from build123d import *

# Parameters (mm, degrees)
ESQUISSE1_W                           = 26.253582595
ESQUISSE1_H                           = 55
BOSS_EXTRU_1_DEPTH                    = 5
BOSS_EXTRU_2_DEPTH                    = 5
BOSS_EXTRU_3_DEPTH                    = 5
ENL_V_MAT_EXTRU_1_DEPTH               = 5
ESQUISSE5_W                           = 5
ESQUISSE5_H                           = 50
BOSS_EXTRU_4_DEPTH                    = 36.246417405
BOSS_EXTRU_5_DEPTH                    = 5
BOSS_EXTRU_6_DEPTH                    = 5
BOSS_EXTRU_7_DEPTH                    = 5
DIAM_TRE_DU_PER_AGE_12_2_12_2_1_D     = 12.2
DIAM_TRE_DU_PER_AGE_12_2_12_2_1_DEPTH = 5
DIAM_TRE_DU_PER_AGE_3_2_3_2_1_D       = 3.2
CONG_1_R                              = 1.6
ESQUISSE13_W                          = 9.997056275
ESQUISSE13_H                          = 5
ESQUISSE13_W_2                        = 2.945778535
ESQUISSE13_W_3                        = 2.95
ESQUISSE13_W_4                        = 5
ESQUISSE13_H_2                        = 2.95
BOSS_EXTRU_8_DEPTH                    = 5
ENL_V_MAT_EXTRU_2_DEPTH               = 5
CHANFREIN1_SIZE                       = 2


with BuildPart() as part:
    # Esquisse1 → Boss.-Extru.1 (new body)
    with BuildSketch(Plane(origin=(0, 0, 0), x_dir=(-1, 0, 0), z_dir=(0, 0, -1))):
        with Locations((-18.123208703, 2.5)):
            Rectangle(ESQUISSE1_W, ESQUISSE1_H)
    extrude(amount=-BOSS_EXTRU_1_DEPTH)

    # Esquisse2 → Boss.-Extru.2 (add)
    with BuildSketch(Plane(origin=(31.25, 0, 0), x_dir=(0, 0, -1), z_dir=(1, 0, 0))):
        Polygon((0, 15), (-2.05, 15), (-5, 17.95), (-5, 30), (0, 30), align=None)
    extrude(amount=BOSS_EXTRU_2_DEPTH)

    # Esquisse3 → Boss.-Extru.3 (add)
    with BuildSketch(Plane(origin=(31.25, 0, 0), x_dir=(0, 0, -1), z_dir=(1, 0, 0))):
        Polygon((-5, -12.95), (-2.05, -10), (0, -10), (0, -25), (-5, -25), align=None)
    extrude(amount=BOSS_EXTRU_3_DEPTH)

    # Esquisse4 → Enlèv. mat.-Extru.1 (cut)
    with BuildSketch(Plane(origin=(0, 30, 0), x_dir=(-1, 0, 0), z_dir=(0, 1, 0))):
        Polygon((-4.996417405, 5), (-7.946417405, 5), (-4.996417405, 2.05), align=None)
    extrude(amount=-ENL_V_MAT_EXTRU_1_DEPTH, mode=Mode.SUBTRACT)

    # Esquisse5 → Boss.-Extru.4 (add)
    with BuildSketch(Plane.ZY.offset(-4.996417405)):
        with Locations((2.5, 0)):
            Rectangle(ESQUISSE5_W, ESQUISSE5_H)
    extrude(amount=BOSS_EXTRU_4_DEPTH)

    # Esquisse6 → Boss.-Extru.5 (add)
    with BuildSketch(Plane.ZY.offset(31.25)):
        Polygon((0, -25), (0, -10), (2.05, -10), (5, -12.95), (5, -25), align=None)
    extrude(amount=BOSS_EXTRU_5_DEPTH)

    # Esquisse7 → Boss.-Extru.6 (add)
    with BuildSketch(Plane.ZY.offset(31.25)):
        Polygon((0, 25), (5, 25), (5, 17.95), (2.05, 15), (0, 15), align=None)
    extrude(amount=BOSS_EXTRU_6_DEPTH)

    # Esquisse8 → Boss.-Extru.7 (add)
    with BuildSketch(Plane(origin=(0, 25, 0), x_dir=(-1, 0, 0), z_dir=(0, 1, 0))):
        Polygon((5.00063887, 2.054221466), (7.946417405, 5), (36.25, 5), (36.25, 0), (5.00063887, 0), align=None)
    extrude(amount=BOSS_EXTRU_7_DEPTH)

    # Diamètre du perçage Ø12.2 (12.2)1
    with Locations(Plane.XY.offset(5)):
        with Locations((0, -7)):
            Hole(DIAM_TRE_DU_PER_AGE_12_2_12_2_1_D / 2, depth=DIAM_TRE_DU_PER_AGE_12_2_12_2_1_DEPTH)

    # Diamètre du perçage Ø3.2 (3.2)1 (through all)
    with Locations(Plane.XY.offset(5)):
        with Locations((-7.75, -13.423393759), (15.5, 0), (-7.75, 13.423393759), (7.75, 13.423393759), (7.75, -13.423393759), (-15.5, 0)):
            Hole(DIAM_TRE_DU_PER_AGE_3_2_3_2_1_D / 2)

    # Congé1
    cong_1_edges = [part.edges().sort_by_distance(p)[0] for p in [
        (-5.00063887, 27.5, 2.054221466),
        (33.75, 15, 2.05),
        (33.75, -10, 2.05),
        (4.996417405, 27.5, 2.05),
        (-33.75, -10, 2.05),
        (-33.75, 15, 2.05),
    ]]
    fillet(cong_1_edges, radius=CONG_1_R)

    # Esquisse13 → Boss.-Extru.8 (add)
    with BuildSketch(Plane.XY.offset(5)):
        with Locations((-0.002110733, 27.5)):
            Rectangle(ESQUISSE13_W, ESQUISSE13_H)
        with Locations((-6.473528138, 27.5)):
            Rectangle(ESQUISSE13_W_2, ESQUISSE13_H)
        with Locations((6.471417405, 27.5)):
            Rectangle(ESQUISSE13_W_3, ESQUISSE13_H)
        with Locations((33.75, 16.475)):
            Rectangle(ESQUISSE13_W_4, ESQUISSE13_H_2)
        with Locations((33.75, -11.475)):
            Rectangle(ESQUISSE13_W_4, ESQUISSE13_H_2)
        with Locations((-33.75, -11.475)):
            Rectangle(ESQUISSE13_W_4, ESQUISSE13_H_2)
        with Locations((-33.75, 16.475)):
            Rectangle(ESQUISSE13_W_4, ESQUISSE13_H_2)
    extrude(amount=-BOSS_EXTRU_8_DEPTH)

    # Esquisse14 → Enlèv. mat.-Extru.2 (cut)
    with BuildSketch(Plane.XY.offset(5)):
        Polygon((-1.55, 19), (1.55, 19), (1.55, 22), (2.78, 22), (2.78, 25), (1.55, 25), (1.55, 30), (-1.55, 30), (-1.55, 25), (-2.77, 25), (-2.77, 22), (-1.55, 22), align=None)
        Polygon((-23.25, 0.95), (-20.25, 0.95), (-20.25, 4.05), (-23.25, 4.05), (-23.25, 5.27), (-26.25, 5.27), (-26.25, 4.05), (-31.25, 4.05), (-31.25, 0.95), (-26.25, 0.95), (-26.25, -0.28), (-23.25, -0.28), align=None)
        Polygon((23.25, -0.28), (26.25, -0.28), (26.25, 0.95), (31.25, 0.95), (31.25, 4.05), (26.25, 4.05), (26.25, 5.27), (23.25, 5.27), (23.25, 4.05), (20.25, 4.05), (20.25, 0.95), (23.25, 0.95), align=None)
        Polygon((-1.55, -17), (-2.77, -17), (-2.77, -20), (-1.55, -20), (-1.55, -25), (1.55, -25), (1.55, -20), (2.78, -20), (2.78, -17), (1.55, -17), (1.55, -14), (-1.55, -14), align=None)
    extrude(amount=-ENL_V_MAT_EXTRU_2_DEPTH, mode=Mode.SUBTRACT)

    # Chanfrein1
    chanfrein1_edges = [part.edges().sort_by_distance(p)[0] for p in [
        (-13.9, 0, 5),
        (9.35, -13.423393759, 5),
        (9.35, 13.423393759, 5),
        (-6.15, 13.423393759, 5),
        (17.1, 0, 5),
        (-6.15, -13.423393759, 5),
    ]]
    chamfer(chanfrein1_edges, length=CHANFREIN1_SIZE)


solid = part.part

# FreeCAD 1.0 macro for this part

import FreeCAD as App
import Part
import Sketcher

V = App.Vector
Q = App.Units.Quantity


def edges_at(feature, points):
    """Names of the edges that pass closest to the given points."""
    edges = feature.Shape.Edges
    near = lambda p: min(range(len(edges)), key=lambda i: edges[i].distToShape(Part.Vertex(*p))[0])
    return sorted({f"Edge{near(p) + 1}" for p in points})

doc = App.newDocument("Part")
body = doc.addObject("PartDesign::Body", "Body")

# Sketch on XY plane
sketch1 = body.newObject("Sketcher::SketchObject", "Sketch")
sketch1.AttachmentSupport = (doc.getObject("XY_Plane"), [""])
sketch1.MapMode = "FlatFace"
sketch1.addGeometry(Part.LineSegment(V(31, 30, 0), V(31, -25, 0)), False)
sketch1.addGeometry(Part.LineSegment(V(31, -25, 0), V(5, -25, 0)), False)
sketch1.addGeometry(Part.LineSegment(V(5, -25, 0), V(5, 30, 0)), False)
sketch1.addGeometry(Part.LineSegment(V(5, 30, 0), V(31, 30, 0)), False)
sketch1.addConstraint(Sketcher.Constraint("Coincident", 0, 2, 1, 1))
sketch1.addConstraint(Sketcher.Constraint("Coincident", 1, 2, 2, 1))
sketch1.addConstraint(Sketcher.Constraint("Coincident", 2, 2, 3, 1))
sketch1.addConstraint(Sketcher.Constraint("Coincident", 3, 2, 0, 1))
sketch1.addConstraint(Sketcher.Constraint("Vertical", 0))
sketch1.addConstraint(Sketcher.Constraint("Horizontal", 1))
sketch1.addConstraint(Sketcher.Constraint("Vertical", 2))
sketch1.addConstraint(Sketcher.Constraint("Horizontal", 3))
sketch1.addConstraint(Sketcher.Constraint("DistanceY", 0, 2, 0, 1, Q("55 mm")))
sketch1.addConstraint(Sketcher.Constraint("DistanceY", 0, 2, -1, 1, Q("25 mm")))
sketch1.addConstraint(Sketcher.Constraint("DistanceX", -1, 1, 0, 2, Q("31.25 mm")))
sketch1.addConstraint(Sketcher.Constraint("DistanceX", 1, 2, 1, 1, Q("26.253583 mm")))
pad1 = body.newObject("PartDesign::Pad", "Pad")
pad1.Profile = sketch1
pad1.Length = 5

# Sketch on YZ plane
sketch2 = body.newObject("Sketcher::SketchObject", "Sketch001")
sketch2.AttachmentSupport = (doc.getObject("YZ_Plane"), [""])
sketch2.MapMode = "FlatFace"
sketch2.AttachmentOffset = App.Placement(V(0, 0, 31.25), App.Rotation())
sketch2.addGeometry(Part.LineSegment(V(15, 2, 0), V(15, 0, 0)), False)
sketch2.addGeometry(Part.LineSegment(V(15, 0, 0), V(30, 0, 0)), False)
sketch2.addGeometry(Part.LineSegment(V(30, 0, 0), V(30, 5, 0)), False)
sketch2.addGeometry(Part.LineSegment(V(30, 5, 0), V(17.9, 5, 0)), False)
sketch2.addGeometry(Part.LineSegment(V(17.9, 5, 0), V(15, 2, 0)), False)
sketch2.addConstraint(Sketcher.Constraint("Coincident", 0, 2, 1, 1))
sketch2.addConstraint(Sketcher.Constraint("Coincident", 1, 2, 2, 1))
sketch2.addConstraint(Sketcher.Constraint("Coincident", 2, 2, 3, 1))
sketch2.addConstraint(Sketcher.Constraint("Coincident", 3, 2, 4, 1))
sketch2.addConstraint(Sketcher.Constraint("Coincident", 4, 2, 0, 1))
sketch2.addConstraint(Sketcher.Constraint("Vertical", 0))
sketch2.addConstraint(Sketcher.Constraint("Horizontal", 1))
sketch2.addConstraint(Sketcher.Constraint("Vertical", 2))
sketch2.addConstraint(Sketcher.Constraint("Horizontal", 3))
sketch2.addConstraint(Sketcher.Constraint("PointOnObject", 0, 2, -1))
sketch2.addConstraint(Sketcher.Constraint("DistanceX", 1, 1, 1, 2, Q("15 mm")))
sketch2.addConstraint(Sketcher.Constraint("DistanceY", 2, 1, 2, 2, Q("5 mm")))
sketch2.addConstraint(Sketcher.Constraint("Angle", 4, Q("-135 deg")))
sketch2.addConstraint(Sketcher.Constraint("DistanceX", -1, 1, 0, 2, Q("15 mm")))
sketch2.addConstraint(Sketcher.Constraint("DistanceX", 3, 2, 3, 1, Q("12.05 mm")))
pad2 = body.newObject("PartDesign::Pad", "Pad001")
pad2.Profile = sketch2
pad2.Length = 5

# Sketch on YZ plane
sketch3 = body.newObject("Sketcher::SketchObject", "Sketch002")
sketch3.AttachmentSupport = (doc.getObject("YZ_Plane"), [""])
sketch3.MapMode = "FlatFace"
sketch3.AttachmentOffset = App.Placement(V(0, 0, 31.25), App.Rotation())
sketch3.addGeometry(Part.LineSegment(V(-10, 2, 0), V(-12.9, 5, 0)), False)
sketch3.addGeometry(Part.LineSegment(V(-12.9, 5, 0), V(-25, 5, 0)), False)
sketch3.addGeometry(Part.LineSegment(V(-25, 5, 0), V(-25, 0, 0)), False)
sketch3.addGeometry(Part.LineSegment(V(-25, 0, 0), V(-10, 0, 0)), False)
sketch3.addGeometry(Part.LineSegment(V(-10, 0, 0), V(-10, 2, 0)), False)
sketch3.addConstraint(Sketcher.Constraint("Coincident", 0, 2, 1, 1))
sketch3.addConstraint(Sketcher.Constraint("Coincident", 1, 2, 2, 1))
sketch3.addConstraint(Sketcher.Constraint("Coincident", 2, 2, 3, 1))
sketch3.addConstraint(Sketcher.Constraint("Coincident", 3, 2, 4, 1))
sketch3.addConstraint(Sketcher.Constraint("Coincident", 4, 2, 0, 1))
sketch3.addConstraint(Sketcher.Constraint("Horizontal", 1))
sketch3.addConstraint(Sketcher.Constraint("Vertical", 2))
sketch3.addConstraint(Sketcher.Constraint("Horizontal", 3))
sketch3.addConstraint(Sketcher.Constraint("Vertical", 4))
sketch3.addConstraint(Sketcher.Constraint("PointOnObject", 2, 2, -1))
sketch3.addConstraint(Sketcher.Constraint("DistanceX", 3, 1, 3, 2, Q("15 mm")))
sketch3.addConstraint(Sketcher.Constraint("DistanceY", 2, 2, 2, 1, Q("5 mm")))
sketch3.addConstraint(Sketcher.Constraint("Angle", 0, Q("135 deg")))
sketch3.addConstraint(Sketcher.Constraint("DistanceX", 1, 2, -1, 1, Q("25 mm")))
sketch3.addConstraint(Sketcher.Constraint("DistanceX", 1, 2, 1, 1, Q("12.05 mm")))
pad3 = body.newObject("PartDesign::Pad", "Pad002")
pad3.Profile = sketch3
pad3.Length = 5

# Sketch on XZ plane
sketch4 = body.newObject("Sketcher::SketchObject", "Sketch003")
sketch4.AttachmentSupport = (doc.getObject("XZ_Plane"), [""])
sketch4.MapMode = "FlatFace"
sketch4.AttachmentOffset = App.Placement(V(0, 0, -30), App.Rotation())
sketch4.addGeometry(Part.LineSegment(V(5, 5, 0), V(7.9, 5, 0)), False)
sketch4.addGeometry(Part.LineSegment(V(7.9, 5, 0), V(5, 2, 0)), False)
sketch4.addGeometry(Part.LineSegment(V(5, 2, 0), V(5, 5, 0)), False)
sketch4.addConstraint(Sketcher.Constraint("Coincident", 0, 2, 1, 1))
sketch4.addConstraint(Sketcher.Constraint("Coincident", 1, 2, 2, 1))
sketch4.addConstraint(Sketcher.Constraint("Coincident", 2, 2, 0, 1))
sketch4.addConstraint(Sketcher.Constraint("Horizontal", 0))
sketch4.addConstraint(Sketcher.Constraint("Vertical", 2))
sketch4.addConstraint(Sketcher.Constraint("Equal", 0, 2))
sketch4.addConstraint(Sketcher.Constraint("DistanceY", -1, 1, 0, 2, Q("5 mm")))
sketch4.addConstraint(Sketcher.Constraint("DistanceX", 0, 1, 0, 2, Q("2.95 mm")))
sketch4.addConstraint(Sketcher.Constraint("DistanceX", -1, 1, 0, 2, Q("7.946417 mm")))
pocket1 = body.newObject("PartDesign::Pocket", "Pocket")
pocket1.Profile = sketch4
pocket1.Length = 5
pocket1.Reversed = True

# Sketch on YZ plane
sketch5 = body.newObject("Sketcher::SketchObject", "Sketch004")
sketch5.AttachmentSupport = (doc.getObject("YZ_Plane"), [""])
sketch5.MapMode = "FlatFace"
sketch5.AttachmentOffset = App.Placement(V(0, 0, 4.996417), App.Rotation())
sketch5.addGeometry(Part.LineSegment(V(25, 0, 0), V(-25, 0, 0)), False)
sketch5.addGeometry(Part.LineSegment(V(-25, 0, 0), V(-25, 5, 0)), False)
sketch5.addGeometry(Part.LineSegment(V(-25, 5, 0), V(25, 5, 0)), False)
sketch5.addGeometry(Part.LineSegment(V(25, 5, 0), V(25, 0, 0)), False)
sketch5.addConstraint(Sketcher.Constraint("Coincident", 0, 2, 1, 1))
sketch5.addConstraint(Sketcher.Constraint("Coincident", 1, 2, 2, 1))
sketch5.addConstraint(Sketcher.Constraint("Coincident", 2, 2, 3, 1))
sketch5.addConstraint(Sketcher.Constraint("Coincident", 3, 2, 0, 1))
sketch5.addConstraint(Sketcher.Constraint("Horizontal", 0))
sketch5.addConstraint(Sketcher.Constraint("Vertical", 1))
sketch5.addConstraint(Sketcher.Constraint("Horizontal", 2))
sketch5.addConstraint(Sketcher.Constraint("Vertical", 3))
sketch5.addConstraint(Sketcher.Constraint("Symmetric", 0, 2, 3, 2, -1, 1))
sketch5.addConstraint(Sketcher.Constraint("DistanceX", 0, 2, 0, 1, Q("50 mm")))
sketch5.addConstraint(Sketcher.Constraint("DistanceY", 1, 1, 1, 2, Q("5 mm")))
pad4 = body.newObject("PartDesign::Pad", "Pad003")
pad4.Profile = sketch5
pad4.Length = 36.246417
pad4.Reversed = True

# Sketch on YZ plane
sketch6 = body.newObject("Sketcher::SketchObject", "Sketch005")
sketch6.AttachmentSupport = (doc.getObject("YZ_Plane"), [""])
sketch6.MapMode = "FlatFace"
sketch6.AttachmentOffset = App.Placement(V(0, 0, -31.25), App.Rotation())
sketch6.addGeometry(Part.LineSegment(V(-10, 0, 0), V(-25, 0, 0)), False)
sketch6.addGeometry(Part.LineSegment(V(-25, 0, 0), V(-25, 5, 0)), False)
sketch6.addGeometry(Part.LineSegment(V(-25, 5, 0), V(-12.9, 5, 0)), False)
sketch6.addGeometry(Part.LineSegment(V(-12.9, 5, 0), V(-10, 2, 0)), False)
sketch6.addGeometry(Part.LineSegment(V(-10, 2, 0), V(-10, 0, 0)), False)
sketch6.addConstraint(Sketcher.Constraint("Coincident", 0, 2, 1, 1))
sketch6.addConstraint(Sketcher.Constraint("Coincident", 1, 2, 2, 1))
sketch6.addConstraint(Sketcher.Constraint("Coincident", 2, 2, 3, 1))
sketch6.addConstraint(Sketcher.Constraint("Coincident", 3, 2, 4, 1))
sketch6.addConstraint(Sketcher.Constraint("Coincident", 4, 2, 0, 1))
sketch6.addConstraint(Sketcher.Constraint("Horizontal", 0))
sketch6.addConstraint(Sketcher.Constraint("Vertical", 1))
sketch6.addConstraint(Sketcher.Constraint("Horizontal", 2))
sketch6.addConstraint(Sketcher.Constraint("Vertical", 4))
sketch6.addConstraint(Sketcher.Constraint("PointOnObject", 0, 2, -1))
sketch6.addConstraint(Sketcher.Constraint("DistanceX", 0, 2, 0, 1, Q("15 mm")))
sketch6.addConstraint(Sketcher.Constraint("DistanceY", 1, 1, 1, 2, Q("5 mm")))
sketch6.addConstraint(Sketcher.Constraint("Angle", 3, Q("-45 deg")))
sketch6.addConstraint(Sketcher.Constraint("DistanceX", 0, 2, -1, 1, Q("25 mm")))
sketch6.addConstraint(Sketcher.Constraint("DistanceX", 2, 1, 2, 2, Q("12.05 mm")))
pad5 = body.newObject("PartDesign::Pad", "Pad004")
pad5.Profile = sketch6
pad5.Length = 5
pad5.Reversed = True

# Sketch on YZ plane
sketch7 = body.newObject("Sketcher::SketchObject", "Sketch006")
sketch7.AttachmentSupport = (doc.getObject("YZ_Plane"), [""])
sketch7.MapMode = "FlatFace"
sketch7.AttachmentOffset = App.Placement(V(0, 0, -31.25), App.Rotation())
sketch7.addGeometry(Part.LineSegment(V(25, 5, 0), V(25, 0, 0)), False)
sketch7.addGeometry(Part.LineSegment(V(25, 0, 0), V(15, 0, 0)), False)
sketch7.addGeometry(Part.LineSegment(V(15, 0, 0), V(15, 2, 0)), False)
sketch7.addGeometry(Part.LineSegment(V(15, 2, 0), V(17.9, 5, 0)), False)
sketch7.addGeometry(Part.LineSegment(V(17.9, 5, 0), V(25, 5, 0)), False)
sketch7.addConstraint(Sketcher.Constraint("Coincident", 0, 2, 1, 1))
sketch7.addConstraint(Sketcher.Constraint("Coincident", 1, 2, 2, 1))
sketch7.addConstraint(Sketcher.Constraint("Coincident", 2, 2, 3, 1))
sketch7.addConstraint(Sketcher.Constraint("Coincident", 3, 2, 4, 1))
sketch7.addConstraint(Sketcher.Constraint("Coincident", 4, 2, 0, 1))
sketch7.addConstraint(Sketcher.Constraint("Vertical", 0))
sketch7.addConstraint(Sketcher.Constraint("Horizontal", 1))
sketch7.addConstraint(Sketcher.Constraint("Vertical", 2))
sketch7.addConstraint(Sketcher.Constraint("Horizontal", 4))
sketch7.addConstraint(Sketcher.Constraint("PointOnObject", 0, 2, -1))
sketch7.addConstraint(Sketcher.Constraint("DistanceX", 1, 2, 1, 1, Q("10 mm")))
sketch7.addConstraint(Sketcher.Constraint("DistanceY", 0, 2, 0, 1, Q("5 mm")))
sketch7.addConstraint(Sketcher.Constraint("Angle", 3, Q("45 deg")))
sketch7.addConstraint(Sketcher.Constraint("DistanceX", -1, 1, 0, 2, Q("25 mm")))
sketch7.addConstraint(Sketcher.Constraint("DistanceX", 4, 1, 4, 2, Q("7.05 mm")))
pad6 = body.newObject("PartDesign::Pad", "Pad005")
pad6.Profile = sketch7
pad6.Length = 5
pad6.Reversed = True

# Sketch on XZ plane
sketch8 = body.newObject("Sketcher::SketchObject", "Sketch007")
sketch8.AttachmentSupport = (doc.getObject("XZ_Plane"), [""])
sketch8.MapMode = "FlatFace"
sketch8.AttachmentOffset = App.Placement(V(0, 0, -25), App.Rotation())
sketch8.addGeometry(Part.LineSegment(V(-7.9, 5, 0), V(-5, 2.1, 0)), False)
sketch8.addGeometry(Part.LineSegment(V(-5, 2.1, 0), V(-5, 0, 0)), False)
sketch8.addGeometry(Part.LineSegment(V(-5, 0, 0), V(-36.2, 0, 0)), False)
sketch8.addGeometry(Part.LineSegment(V(-36.2, 0, 0), V(-36.2, 5, 0)), False)
sketch8.addGeometry(Part.LineSegment(V(-36.2, 5, 0), V(-7.9, 5, 0)), False)
sketch8.addConstraint(Sketcher.Constraint("Coincident", 0, 2, 1, 1))
sketch8.addConstraint(Sketcher.Constraint("Coincident", 1, 2, 2, 1))
sketch8.addConstraint(Sketcher.Constraint("Coincident", 2, 2, 3, 1))
sketch8.addConstraint(Sketcher.Constraint("Coincident", 3, 2, 4, 1))
sketch8.addConstraint(Sketcher.Constraint("Coincident", 4, 2, 0, 1))
sketch8.addConstraint(Sketcher.Constraint("Vertical", 1))
sketch8.addConstraint(Sketcher.Constraint("Horizontal", 2))
sketch8.addConstraint(Sketcher.Constraint("Vertical", 3))
sketch8.addConstraint(Sketcher.Constraint("Horizontal", 4))
sketch8.addConstraint(Sketcher.Constraint("PointOnObject", 1, 2, -1))
sketch8.addConstraint(Sketcher.Constraint("DistanceY", 3, 1, 3, 2, Q("5 mm")))
sketch8.addConstraint(Sketcher.Constraint("Angle", 0, Q("-45 deg")))
sketch8.addConstraint(Sketcher.Constraint("DistanceX", 2, 2, -1, 1, Q("36.25 mm")))
sketch8.addConstraint(Sketcher.Constraint("DistanceX", 2, 2, 2, 1, Q("31.249361 mm")))
sketch8.addConstraint(Sketcher.Constraint("DistanceY", 1, 2, 1, 1, Q("2.054221 mm")))
pad7 = body.newObject("PartDesign::Pad", "Pad006")
pad7.Profile = sketch8
pad7.Length = 5
pad7.Reversed = True

# Sketch on XY plane
sketch9 = body.newObject("Sketcher::SketchObject", "Sketch008")
sketch9.AttachmentSupport = (doc.getObject("XY_Plane"), [""])
sketch9.MapMode = "FlatFace"
sketch9.AttachmentOffset = App.Placement(V(0, 0, 5), App.Rotation())
sketch9.addGeometry(Part.Circle(V(0, -7, 0), V(0, 0, 1), 6), False)
sketch9.addConstraint(Sketcher.Constraint("PointOnObject", 0, 3, -2))
sketch9.addConstraint(Sketcher.Constraint("Diameter", 0, Q("12.2 mm")))
sketch9.addConstraint(Sketcher.Constraint("DistanceY", 0, 3, -1, 1, Q("7 mm")))
doc.recompute()
hole = body.newObject("PartDesign::Hole", "Hole")
hole.Profile = sketch9
hole.ThreadType = "None"
hole.Diameter = 12.2
hole.DepthType = "Dimension"
hole.Depth = 5
hole.DrillPoint = "Flat"

# Sketch on XY plane
sketch10 = body.newObject("Sketcher::SketchObject", "Sketch009")
sketch10.AttachmentSupport = (doc.getObject("XY_Plane"), [""])
sketch10.MapMode = "FlatFace"
sketch10.AttachmentOffset = App.Placement(V(0, 0, 5), App.Rotation())
sketch10.addGeometry(Part.Circle(V(-7.8, -13.4, 0), V(0, 0, 1), 1.6), False)
sketch10.addGeometry(Part.Circle(V(15.5, 0, 0), V(0, 0, 1), 1.6), False)
sketch10.addGeometry(Part.Circle(V(-7.8, 13.4, 0), V(0, 0, 1), 1.6), False)
sketch10.addGeometry(Part.Circle(V(7.8, 13.4, 0), V(0, 0, 1), 1.6), False)
sketch10.addGeometry(Part.Circle(V(7.8, -13.4, 0), V(0, 0, 1), 1.6), False)
sketch10.addGeometry(Part.Circle(V(-15.5, 0, 0), V(0, 0, 1), 1.6), False)
sketch10.addConstraint(Sketcher.Constraint("Equal", 0, 1))
sketch10.addConstraint(Sketcher.Constraint("Equal", 1, 2))
sketch10.addConstraint(Sketcher.Constraint("Equal", 2, 3))
sketch10.addConstraint(Sketcher.Constraint("Equal", 3, 4))
sketch10.addConstraint(Sketcher.Constraint("Equal", 4, 5))
sketch10.addConstraint(Sketcher.Constraint("Symmetric", 0, 3, 3, 3, -1, 1))
sketch10.addConstraint(Sketcher.Constraint("Symmetric", 2, 3, 4, 3, -1, 1))
sketch10.addConstraint(Sketcher.Constraint("Symmetric", 1, 3, 5, 3, -1, 1))
sketch10.addConstraint(Sketcher.Constraint("Symmetric", 2, 3, 3, 3, -2))
sketch10.addConstraint(Sketcher.Constraint("PointOnObject", 1, 3, -1))
sketch10.addConstraint(Sketcher.Constraint("Diameter", 0, Q("3.2 mm")))
sketch10.addConstraint(Sketcher.Constraint("DistanceX", 5, 3, 1, 3, Q("31 mm")))
sketch10.addConstraint(Sketcher.Constraint("DistanceX", 2, 3, 3, 3, Q("15.5 mm")))
sketch10.addConstraint(Sketcher.Constraint("DistanceY", 0, 3, -1, 1, Q("13.423394 mm")))
doc.recompute()
hole2 = body.newObject("PartDesign::Hole", "Hole001")
hole2.Profile = sketch10
hole2.ThreadType = "None"
hole2.Diameter = 3.2
hole2.DepthType = "ThroughAll"
doc.recompute()

fillet = body.newObject("PartDesign::Fillet", "Fillet")
fillet.Base = (hole2, edges_at(hole2, [
    (-5.001, 27.5, 2.054),
    (33.75, 15, 2.05),
    (33.75, -10, 2.05),
    (4.996, 27.5, 2.05),
    (-33.75, -10, 2.05),
    (-33.75, 15, 2.05),
]))
fillet.Radius = 1.6

# Sketch on XY plane
sketch11 = body.newObject("Sketcher::SketchObject", "Sketch010")
sketch11.AttachmentSupport = (doc.getObject("XY_Plane"), [""])
sketch11.MapMode = "FlatFace"
sketch11.AttachmentOffset = App.Placement(V(0, 0, 5), App.Rotation())
sketch11.addGeometry(Part.LineSegment(V(-7.9, 30, 0), V(-7.9, 25, 0)), False)
sketch11.addGeometry(Part.LineSegment(V(-7.9, 25, 0), V(7.9, 25, 0)), False)
sketch11.addGeometry(Part.LineSegment(V(7.9, 25, 0), V(7.9, 30, 0)), False)
sketch11.addGeometry(Part.LineSegment(V(7.9, 30, 0), V(-7.9, 30, 0)), False)
sketch11.addGeometry(Part.LineSegment(V(31.2, 17.9, 0), V(31.2, 15, 0)), False)
sketch11.addGeometry(Part.LineSegment(V(31.2, 15, 0), V(36.2, 15, 0)), False)
sketch11.addGeometry(Part.LineSegment(V(36.2, 15, 0), V(36.2, 17.9, 0)), False)
sketch11.addGeometry(Part.LineSegment(V(36.2, 17.9, 0), V(31.2, 17.9, 0)), False)
sketch11.addGeometry(Part.LineSegment(V(31.2, -10, 0), V(31.2, -12.9, 0)), False)
sketch11.addGeometry(Part.LineSegment(V(31.2, -12.9, 0), V(36.2, -12.9, 0)), False)
sketch11.addGeometry(Part.LineSegment(V(36.2, -12.9, 0), V(36.2, -10, 0)), False)
sketch11.addGeometry(Part.LineSegment(V(36.2, -10, 0), V(31.2, -10, 0)), False)
sketch11.addGeometry(Part.LineSegment(V(-36.2, -10, 0), V(-36.2, -12.9, 0)), False)
sketch11.addGeometry(Part.LineSegment(V(-36.2, -12.9, 0), V(-31.2, -12.9, 0)), False)
sketch11.addGeometry(Part.LineSegment(V(-31.2, -12.9, 0), V(-31.2, -10, 0)), False)
sketch11.addGeometry(Part.LineSegment(V(-31.2, -10, 0), V(-36.2, -10, 0)), False)
sketch11.addGeometry(Part.LineSegment(V(-36.2, 17.9, 0), V(-36.2, 15, 0)), False)
sketch11.addGeometry(Part.LineSegment(V(-36.2, 15, 0), V(-31.2, 15, 0)), False)
sketch11.addGeometry(Part.LineSegment(V(-31.2, 15, 0), V(-31.2, 17.9, 0)), False)
sketch11.addGeometry(Part.LineSegment(V(-31.2, 17.9, 0), V(-36.2, 17.9, 0)), False)
sketch11.addConstraint(Sketcher.Constraint("Coincident", 0, 2, 1, 1))
sketch11.addConstraint(Sketcher.Constraint("Coincident", 1, 2, 2, 1))
sketch11.addConstraint(Sketcher.Constraint("Coincident", 2, 2, 3, 1))
sketch11.addConstraint(Sketcher.Constraint("Coincident", 3, 2, 0, 1))
sketch11.addConstraint(Sketcher.Constraint("Coincident", 4, 2, 5, 1))
sketch11.addConstraint(Sketcher.Constraint("Coincident", 5, 2, 6, 1))
sketch11.addConstraint(Sketcher.Constraint("Coincident", 6, 2, 7, 1))
sketch11.addConstraint(Sketcher.Constraint("Coincident", 7, 2, 4, 1))
sketch11.addConstraint(Sketcher.Constraint("Coincident", 8, 2, 9, 1))
sketch11.addConstraint(Sketcher.Constraint("Coincident", 9, 2, 10, 1))
sketch11.addConstraint(Sketcher.Constraint("Coincident", 10, 2, 11, 1))
sketch11.addConstraint(Sketcher.Constraint("Coincident", 11, 2, 8, 1))
sketch11.addConstraint(Sketcher.Constraint("Coincident", 12, 2, 13, 1))
sketch11.addConstraint(Sketcher.Constraint("Coincident", 13, 2, 14, 1))
sketch11.addConstraint(Sketcher.Constraint("Coincident", 14, 2, 15, 1))
sketch11.addConstraint(Sketcher.Constraint("Coincident", 15, 2, 12, 1))
sketch11.addConstraint(Sketcher.Constraint("Coincident", 16, 2, 17, 1))
sketch11.addConstraint(Sketcher.Constraint("Coincident", 17, 2, 18, 1))
sketch11.addConstraint(Sketcher.Constraint("Coincident", 18, 2, 19, 1))
sketch11.addConstraint(Sketcher.Constraint("Coincident", 19, 2, 16, 1))
sketch11.addConstraint(Sketcher.Constraint("Vertical", 0))
sketch11.addConstraint(Sketcher.Constraint("Horizontal", 1))
sketch11.addConstraint(Sketcher.Constraint("Vertical", 2))
sketch11.addConstraint(Sketcher.Constraint("Horizontal", 3))
sketch11.addConstraint(Sketcher.Constraint("Vertical", 4))
sketch11.addConstraint(Sketcher.Constraint("Horizontal", 5))
sketch11.addConstraint(Sketcher.Constraint("Vertical", 6))
sketch11.addConstraint(Sketcher.Constraint("Horizontal", 7))
sketch11.addConstraint(Sketcher.Constraint("Vertical", 8))
sketch11.addConstraint(Sketcher.Constraint("Horizontal", 9))
sketch11.addConstraint(Sketcher.Constraint("Vertical", 10))
sketch11.addConstraint(Sketcher.Constraint("Horizontal", 11))
sketch11.addConstraint(Sketcher.Constraint("Vertical", 12))
sketch11.addConstraint(Sketcher.Constraint("Horizontal", 13))
sketch11.addConstraint(Sketcher.Constraint("Vertical", 14))
sketch11.addConstraint(Sketcher.Constraint("Horizontal", 15))
sketch11.addConstraint(Sketcher.Constraint("Vertical", 16))
sketch11.addConstraint(Sketcher.Constraint("Horizontal", 17))
sketch11.addConstraint(Sketcher.Constraint("Vertical", 18))
sketch11.addConstraint(Sketcher.Constraint("Horizontal", 19))
sketch11.addConstraint(Sketcher.Constraint("Symmetric", 9, 2, 12, 2, -2))
sketch11.addConstraint(Sketcher.Constraint("Symmetric", 11, 2, 14, 2, -2))
sketch11.addConstraint(Sketcher.Constraint("Symmetric", 5, 2, 16, 2, -2))
sketch11.addConstraint(Sketcher.Constraint("Symmetric", 7, 2, 18, 2, -2))
sketch11.addConstraint(Sketcher.Constraint("Vertical", 7, 2, 8, 2))
sketch11.addConstraint(Sketcher.Constraint("Vertical", 6, 2, 9, 2))
sketch11.addConstraint(Sketcher.Constraint("Equal", 19, 0))
sketch11.addConstraint(Sketcher.Constraint("Equal", 6, 8))
sketch11.addConstraint(Sketcher.Constraint("DistanceX", 5, 1, 5, 2, Q("5 mm")))
sketch11.addConstraint(Sketcher.Constraint("DistanceY", -1, 1, 0, 2, Q("25 mm")))
sketch11.addConstraint(Sketcher.Constraint("DistanceY", -1, 1, 4, 2, Q("15 mm")))
sketch11.addConstraint(Sketcher.Constraint("DistanceY", 10, 2, -1, 1, Q("10 mm")))
sketch11.addConstraint(Sketcher.Constraint("DistanceY", 4, 2, 4, 1, Q("2.95 mm")))
sketch11.addConstraint(Sketcher.Constraint("DistanceX", 12, 2, 8, 2, Q("67.5 mm")))
sketch11.addConstraint(Sketcher.Constraint("DistanceX", 1, 1, 1, 2, Q("15.892835 mm")))
sketch11.addConstraint(Sketcher.Constraint("DistanceX", 0, 2, -1, 1, Q("7.946417 mm")))
pad8 = body.newObject("PartDesign::Pad", "Pad007")
pad8.Profile = sketch11
pad8.Length = 5
pad8.Reversed = True

# Sketch on XY plane
sketch12 = body.newObject("Sketcher::SketchObject", "Sketch011")
sketch12.AttachmentSupport = (doc.getObject("XY_Plane"), [""])
sketch12.MapMode = "FlatFace"
sketch12.AttachmentOffset = App.Placement(V(0, 0, 5), App.Rotation())
sketch12.addGeometry(Part.LineSegment(V(-1.6, 19, 0), V(1.6, 19, 0)), False)
sketch12.addGeometry(Part.LineSegment(V(1.6, 19, 0), V(1.6, 22, 0)), False)
sketch12.addGeometry(Part.LineSegment(V(1.6, 22, 0), V(2.8, 22, 0)), False)
sketch12.addGeometry(Part.LineSegment(V(2.8, 22, 0), V(2.8, 25, 0)), False)
sketch12.addGeometry(Part.LineSegment(V(2.8, 25, 0), V(1.6, 25, 0)), False)
sketch12.addGeometry(Part.LineSegment(V(1.6, 25, 0), V(1.6, 30, 0)), False)
sketch12.addGeometry(Part.LineSegment(V(1.6, 30, 0), V(-1.6, 30, 0)), False)
sketch12.addGeometry(Part.LineSegment(V(-1.6, 30, 0), V(-1.6, 25, 0)), False)
sketch12.addGeometry(Part.LineSegment(V(-1.6, 25, 0), V(-2.8, 25, 0)), False)
sketch12.addGeometry(Part.LineSegment(V(-2.8, 25, 0), V(-2.8, 22, 0)), False)
sketch12.addGeometry(Part.LineSegment(V(-2.8, 22, 0), V(-1.6, 22, 0)), False)
sketch12.addGeometry(Part.LineSegment(V(-1.6, 22, 0), V(-1.6, 19, 0)), False)
sketch12.addGeometry(Part.LineSegment(V(-23.2, 0.9, 0), V(-20.2, 0.9, 0)), False)
sketch12.addGeometry(Part.LineSegment(V(-20.2, 0.9, 0), V(-20.2, 4, 0)), False)
sketch12.addGeometry(Part.LineSegment(V(-20.2, 4, 0), V(-23.2, 4, 0)), False)
sketch12.addGeometry(Part.LineSegment(V(-23.2, 4, 0), V(-23.2, 5.3, 0)), False)
sketch12.addGeometry(Part.LineSegment(V(-23.2, 5.3, 0), V(-26.2, 5.3, 0)), False)
sketch12.addGeometry(Part.LineSegment(V(-26.2, 5.3, 0), V(-26.2, 4, 0)), False)
sketch12.addGeometry(Part.LineSegment(V(-26.2, 4, 0), V(-31.2, 4, 0)), False)
sketch12.addGeometry(Part.LineSegment(V(-31.2, 4, 0), V(-31.2, 0.9, 0)), False)
sketch12.addGeometry(Part.LineSegment(V(-31.2, 0.9, 0), V(-26.2, 0.9, 0)), False)
sketch12.addGeometry(Part.LineSegment(V(-26.2, 0.9, 0), V(-26.2, -0.3, 0)), False)
sketch12.addGeometry(Part.LineSegment(V(-26.2, -0.3, 0), V(-23.2, -0.3, 0)), False)
sketch12.addGeometry(Part.LineSegment(V(-23.2, -0.3, 0), V(-23.2, 0.9, 0)), False)
sketch12.addGeometry(Part.LineSegment(V(23.2, -0.3, 0), V(26.2, -0.3, 0)), False)
sketch12.addGeometry(Part.LineSegment(V(26.2, -0.3, 0), V(26.2, 0.9, 0)), False)
sketch12.addGeometry(Part.LineSegment(V(26.2, 0.9, 0), V(31.2, 0.9, 0)), False)
sketch12.addGeometry(Part.LineSegment(V(31.2, 0.9, 0), V(31.2, 4, 0)), False)
sketch12.addGeometry(Part.LineSegment(V(31.2, 4, 0), V(26.2, 4, 0)), False)
sketch12.addGeometry(Part.LineSegment(V(26.2, 4, 0), V(26.2, 5.3, 0)), False)
sketch12.addGeometry(Part.LineSegment(V(26.2, 5.3, 0), V(23.2, 5.3, 0)), False)
sketch12.addGeometry(Part.LineSegment(V(23.2, 5.3, 0), V(23.2, 4, 0)), False)
sketch12.addGeometry(Part.LineSegment(V(23.2, 4, 0), V(20.2, 4, 0)), False)
sketch12.addGeometry(Part.LineSegment(V(20.2, 4, 0), V(20.2, 0.9, 0)), False)
sketch12.addGeometry(Part.LineSegment(V(20.2, 0.9, 0), V(23.2, 0.9, 0)), False)
sketch12.addGeometry(Part.LineSegment(V(23.2, 0.9, 0), V(23.2, -0.3, 0)), False)
sketch12.addGeometry(Part.LineSegment(V(-1.6, -17, 0), V(-2.8, -17, 0)), False)
sketch12.addGeometry(Part.LineSegment(V(-2.8, -17, 0), V(-2.8, -20, 0)), False)
sketch12.addGeometry(Part.LineSegment(V(-2.8, -20, 0), V(-1.6, -20, 0)), False)
sketch12.addGeometry(Part.LineSegment(V(-1.6, -20, 0), V(-1.6, -25, 0)), False)
sketch12.addGeometry(Part.LineSegment(V(-1.6, -25, 0), V(1.6, -25, 0)), False)
sketch12.addGeometry(Part.LineSegment(V(1.6, -25, 0), V(1.6, -20, 0)), False)
sketch12.addGeometry(Part.LineSegment(V(1.6, -20, 0), V(2.8, -20, 0)), False)
sketch12.addGeometry(Part.LineSegment(V(2.8, -20, 0), V(2.8, -17, 0)), False)
sketch12.addGeometry(Part.LineSegment(V(2.8, -17, 0), V(1.6, -17, 0)), False)
sketch12.addGeometry(Part.LineSegment(V(1.6, -17, 0), V(1.6, -14, 0)), False)
sketch12.addGeometry(Part.LineSegment(V(1.6, -14, 0), V(-1.6, -14, 0)), False)
sketch12.addGeometry(Part.LineSegment(V(-1.6, -14, 0), V(-1.6, -17, 0)), False)
sketch12.addConstraint(Sketcher.Constraint("Coincident", 0, 2, 1, 1))
sketch12.addConstraint(Sketcher.Constraint("Coincident", 1, 2, 2, 1))
sketch12.addConstraint(Sketcher.Constraint("Coincident", 2, 2, 3, 1))
sketch12.addConstraint(Sketcher.Constraint("Coincident", 3, 2, 4, 1))
sketch12.addConstraint(Sketcher.Constraint("Coincident", 4, 2, 5, 1))
sketch12.addConstraint(Sketcher.Constraint("Coincident", 5, 2, 6, 1))
sketch12.addConstraint(Sketcher.Constraint("Coincident", 6, 2, 7, 1))
sketch12.addConstraint(Sketcher.Constraint("Coincident", 7, 2, 8, 1))
sketch12.addConstraint(Sketcher.Constraint("Coincident", 8, 2, 9, 1))
sketch12.addConstraint(Sketcher.Constraint("Coincident", 9, 2, 10, 1))
sketch12.addConstraint(Sketcher.Constraint("Coincident", 10, 2, 11, 1))
sketch12.addConstraint(Sketcher.Constraint("Coincident", 11, 2, 0, 1))
sketch12.addConstraint(Sketcher.Constraint("Coincident", 12, 2, 13, 1))
sketch12.addConstraint(Sketcher.Constraint("Coincident", 13, 2, 14, 1))
sketch12.addConstraint(Sketcher.Constraint("Coincident", 14, 2, 15, 1))
sketch12.addConstraint(Sketcher.Constraint("Coincident", 15, 2, 16, 1))
sketch12.addConstraint(Sketcher.Constraint("Coincident", 16, 2, 17, 1))
sketch12.addConstraint(Sketcher.Constraint("Coincident", 17, 2, 18, 1))
sketch12.addConstraint(Sketcher.Constraint("Coincident", 18, 2, 19, 1))
sketch12.addConstraint(Sketcher.Constraint("Coincident", 19, 2, 20, 1))
sketch12.addConstraint(Sketcher.Constraint("Coincident", 20, 2, 21, 1))
sketch12.addConstraint(Sketcher.Constraint("Coincident", 21, 2, 22, 1))
sketch12.addConstraint(Sketcher.Constraint("Coincident", 22, 2, 23, 1))
sketch12.addConstraint(Sketcher.Constraint("Coincident", 23, 2, 12, 1))
sketch12.addConstraint(Sketcher.Constraint("Coincident", 24, 2, 25, 1))
sketch12.addConstraint(Sketcher.Constraint("Coincident", 25, 2, 26, 1))
sketch12.addConstraint(Sketcher.Constraint("Coincident", 26, 2, 27, 1))
sketch12.addConstraint(Sketcher.Constraint("Coincident", 27, 2, 28, 1))
sketch12.addConstraint(Sketcher.Constraint("Coincident", 28, 2, 29, 1))
sketch12.addConstraint(Sketcher.Constraint("Coincident", 29, 2, 30, 1))
sketch12.addConstraint(Sketcher.Constraint("Coincident", 30, 2, 31, 1))
sketch12.addConstraint(Sketcher.Constraint("Coincident", 31, 2, 32, 1))
sketch12.addConstraint(Sketcher.Constraint("Coincident", 32, 2, 33, 1))
sketch12.addConstraint(Sketcher.Constraint("Coincident", 33, 2, 34, 1))
sketch12.addConstraint(Sketcher.Constraint("Coincident", 34, 2, 35, 1))
sketch12.addConstraint(Sketcher.Constraint("Coincident", 35, 2, 24, 1))
sketch12.addConstraint(Sketcher.Constraint("Coincident", 36, 2, 37, 1))
sketch12.addConstraint(Sketcher.Constraint("Coincident", 37, 2, 38, 1))
sketch12.addConstraint(Sketcher.Constraint("Coincident", 38, 2, 39, 1))
sketch12.addConstraint(Sketcher.Constraint("Coincident", 39, 2, 40, 1))
sketch12.addConstraint(Sketcher.Constraint("Coincident", 40, 2, 41, 1))
sketch12.addConstraint(Sketcher.Constraint("Coincident", 41, 2, 42, 1))
sketch12.addConstraint(Sketcher.Constraint("Coincident", 42, 2, 43, 1))
sketch12.addConstraint(Sketcher.Constraint("Coincident", 43, 2, 44, 1))
sketch12.addConstraint(Sketcher.Constraint("Coincident", 44, 2, 45, 1))
sketch12.addConstraint(Sketcher.Constraint("Coincident", 45, 2, 46, 1))
sketch12.addConstraint(Sketcher.Constraint("Coincident", 46, 2, 47, 1))
sketch12.addConstraint(Sketcher.Constraint("Coincident", 47, 2, 36, 1))
sketch12.addConstraint(Sketcher.Constraint("Horizontal", 0))
sketch12.addConstraint(Sketcher.Constraint("Vertical", 1))
sketch12.addConstraint(Sketcher.Constraint("Horizontal", 2))
sketch12.addConstraint(Sketcher.Constraint("Vertical", 3))
sketch12.addConstraint(Sketcher.Constraint("Horizontal", 4))
sketch12.addConstraint(Sketcher.Constraint("Vertical", 5))
sketch12.addConstraint(Sketcher.Constraint("Horizontal", 6))
sketch12.addConstraint(Sketcher.Constraint("Vertical", 7))
sketch12.addConstraint(Sketcher.Constraint("Horizontal", 8))
sketch12.addConstraint(Sketcher.Constraint("Vertical", 9))
sketch12.addConstraint(Sketcher.Constraint("Horizontal", 10))
sketch12.addConstraint(Sketcher.Constraint("Vertical", 11))
sketch12.addConstraint(Sketcher.Constraint("Horizontal", 12))
sketch12.addConstraint(Sketcher.Constraint("Vertical", 13))
sketch12.addConstraint(Sketcher.Constraint("Horizontal", 14))
sketch12.addConstraint(Sketcher.Constraint("Vertical", 15))
sketch12.addConstraint(Sketcher.Constraint("Horizontal", 16))
sketch12.addConstraint(Sketcher.Constraint("Vertical", 17))
sketch12.addConstraint(Sketcher.Constraint("Horizontal", 18))
sketch12.addConstraint(Sketcher.Constraint("Vertical", 19))
sketch12.addConstraint(Sketcher.Constraint("Horizontal", 20))
sketch12.addConstraint(Sketcher.Constraint("Vertical", 21))
sketch12.addConstraint(Sketcher.Constraint("Horizontal", 22))
sketch12.addConstraint(Sketcher.Constraint("Vertical", 23))
sketch12.addConstraint(Sketcher.Constraint("Horizontal", 24))
sketch12.addConstraint(Sketcher.Constraint("Vertical", 25))
sketch12.addConstraint(Sketcher.Constraint("Horizontal", 26))
sketch12.addConstraint(Sketcher.Constraint("Vertical", 27))
sketch12.addConstraint(Sketcher.Constraint("Horizontal", 28))
sketch12.addConstraint(Sketcher.Constraint("Vertical", 29))
sketch12.addConstraint(Sketcher.Constraint("Horizontal", 30))
sketch12.addConstraint(Sketcher.Constraint("Vertical", 31))
sketch12.addConstraint(Sketcher.Constraint("Horizontal", 32))
sketch12.addConstraint(Sketcher.Constraint("Vertical", 33))
sketch12.addConstraint(Sketcher.Constraint("Horizontal", 34))
sketch12.addConstraint(Sketcher.Constraint("Vertical", 35))
sketch12.addConstraint(Sketcher.Constraint("Horizontal", 36))
sketch12.addConstraint(Sketcher.Constraint("Vertical", 37))
sketch12.addConstraint(Sketcher.Constraint("Horizontal", 38))
sketch12.addConstraint(Sketcher.Constraint("Vertical", 39))
sketch12.addConstraint(Sketcher.Constraint("Horizontal", 40))
sketch12.addConstraint(Sketcher.Constraint("Vertical", 41))
sketch12.addConstraint(Sketcher.Constraint("Horizontal", 42))
sketch12.addConstraint(Sketcher.Constraint("Vertical", 43))
sketch12.addConstraint(Sketcher.Constraint("Horizontal", 44))
sketch12.addConstraint(Sketcher.Constraint("Vertical", 45))
sketch12.addConstraint(Sketcher.Constraint("Horizontal", 46))
sketch12.addConstraint(Sketcher.Constraint("Vertical", 47))
sketch12.addConstraint(Sketcher.Constraint("Symmetric", 4, 2, 39, 2, -1, 1))
sketch12.addConstraint(Sketcher.Constraint("Symmetric", 7, 2, 40, 2, -1, 1))
sketch12.addConstraint(Sketcher.Constraint("Symmetric", 1, 2, 10, 2, -2))
sketch12.addConstraint(Sketcher.Constraint("Symmetric", 21, 2, 24, 2, -2))
sketch12.addConstraint(Sketcher.Constraint("Symmetric", 19, 2, 26, 2, -2))
sketch12.addConstraint(Sketcher.Constraint("Symmetric", 17, 2, 28, 2, -2))
sketch12.addConstraint(Sketcher.Constraint("Symmetric", 15, 2, 30, 2, -2))
sketch12.addConstraint(Sketcher.Constraint("Symmetric", 13, 2, 32, 2, -2))
sketch12.addConstraint(Sketcher.Constraint("Symmetric", 23, 2, 34, 2, -2))
sketch12.addConstraint(Sketcher.Constraint("Symmetric", 38, 2, 41, 2, -2))
sketch12.addConstraint(Sketcher.Constraint("Symmetric", 44, 2, 47, 2, -2))
sketch12.addConstraint(Sketcher.Constraint("Horizontal", 14, 2, 17, 2))
sketch12.addConstraint(Sketcher.Constraint("Horizontal", 12, 2, 19, 2))
sketch12.addConstraint(Sketcher.Constraint("Vertical", 1, 2, 4, 2))
sketch12.addConstraint(Sketcher.Constraint("Vertical", 17, 2, 20, 2))
sketch12.addConstraint(Sketcher.Constraint("Vertical", 15, 2, 22, 2))
sketch12.addConstraint(Sketcher.Constraint("Vertical", 9, 2, 36, 2))
sketch12.addConstraint(Sketcher.Constraint("Vertical", 3, 2, 42, 2))
sketch12.addConstraint(Sketcher.Constraint("Vertical", 41, 2, 44, 2))
sketch12.addConstraint(Sketcher.Constraint("Equal", 14, 16))
sketch12.addConstraint(Sketcher.Constraint("Equal", 34, 1))
sketch12.addConstraint(Sketcher.Constraint("Equal", 1, 3))
sketch12.addConstraint(Sketcher.Constraint("Equal", 28, 5))
sketch12.addConstraint(Sketcher.Constraint("Equal", 46, 13))
sketch12.addConstraint(Sketcher.Constraint("Equal", 38, 15))
sketch12.addConstraint(Sketcher.Constraint("Equal", 44, 21))
sketch12.addConstraint(Sketcher.Constraint("Equal", 11, 37))
sketch12.addConstraint(Sketcher.Constraint("Equal", 7, 39))
sketch12.addConstraint(Sketcher.Constraint("Equal", 43, 45))
sketch12.addConstraint(Sketcher.Constraint("DistanceX", 12, 1, 12, 2, Q("3 mm")))
sketch12.addConstraint(Sketcher.Constraint("DistanceX", 18, 2, 18, 1, Q("5 mm")))
sketch12.addConstraint(Sketcher.Constraint("DistanceX", 0, 1, 0, 2, Q("3.1 mm")))
sketch12.addConstraint(Sketcher.Constraint("DistanceY", -1, 1, 0, 2, Q("19 mm")))
sketch12.addConstraint(Sketcher.Constraint("DistanceX", 2, 1, 2, 2, Q("1.23 mm")))
sketch12.addConstraint(Sketcher.Constraint("DistanceX", 8, 2, 8, 1, Q("1.22 mm")))
sketch12.addConstraint(Sketcher.Constraint("DistanceX", 12, 2, 11, 2, Q("18.7 mm")))
sketch12.addConstraint(Sketcher.Constraint("DistanceY", -1, 1, 12, 2, Q("0.95 mm")))
pocket2 = body.newObject("PartDesign::Pocket", "Pocket001")
pocket2.Profile = sketch12
pocket2.Length = 5
doc.recompute()

chamfer = body.newObject("PartDesign::Chamfer", "Chamfer")
chamfer.Base = (pocket2, edges_at(pocket2, [
    (-13.9, 0, 5),
    (9.35, -13.423, 5),
    (9.35, 13.423, 5),
    (-6.15, 13.423, 5),
    (17.1, 0, 5),
    (-6.15, -13.423, 5),
]))
chamfer.Size = 2

doc.recompute()
